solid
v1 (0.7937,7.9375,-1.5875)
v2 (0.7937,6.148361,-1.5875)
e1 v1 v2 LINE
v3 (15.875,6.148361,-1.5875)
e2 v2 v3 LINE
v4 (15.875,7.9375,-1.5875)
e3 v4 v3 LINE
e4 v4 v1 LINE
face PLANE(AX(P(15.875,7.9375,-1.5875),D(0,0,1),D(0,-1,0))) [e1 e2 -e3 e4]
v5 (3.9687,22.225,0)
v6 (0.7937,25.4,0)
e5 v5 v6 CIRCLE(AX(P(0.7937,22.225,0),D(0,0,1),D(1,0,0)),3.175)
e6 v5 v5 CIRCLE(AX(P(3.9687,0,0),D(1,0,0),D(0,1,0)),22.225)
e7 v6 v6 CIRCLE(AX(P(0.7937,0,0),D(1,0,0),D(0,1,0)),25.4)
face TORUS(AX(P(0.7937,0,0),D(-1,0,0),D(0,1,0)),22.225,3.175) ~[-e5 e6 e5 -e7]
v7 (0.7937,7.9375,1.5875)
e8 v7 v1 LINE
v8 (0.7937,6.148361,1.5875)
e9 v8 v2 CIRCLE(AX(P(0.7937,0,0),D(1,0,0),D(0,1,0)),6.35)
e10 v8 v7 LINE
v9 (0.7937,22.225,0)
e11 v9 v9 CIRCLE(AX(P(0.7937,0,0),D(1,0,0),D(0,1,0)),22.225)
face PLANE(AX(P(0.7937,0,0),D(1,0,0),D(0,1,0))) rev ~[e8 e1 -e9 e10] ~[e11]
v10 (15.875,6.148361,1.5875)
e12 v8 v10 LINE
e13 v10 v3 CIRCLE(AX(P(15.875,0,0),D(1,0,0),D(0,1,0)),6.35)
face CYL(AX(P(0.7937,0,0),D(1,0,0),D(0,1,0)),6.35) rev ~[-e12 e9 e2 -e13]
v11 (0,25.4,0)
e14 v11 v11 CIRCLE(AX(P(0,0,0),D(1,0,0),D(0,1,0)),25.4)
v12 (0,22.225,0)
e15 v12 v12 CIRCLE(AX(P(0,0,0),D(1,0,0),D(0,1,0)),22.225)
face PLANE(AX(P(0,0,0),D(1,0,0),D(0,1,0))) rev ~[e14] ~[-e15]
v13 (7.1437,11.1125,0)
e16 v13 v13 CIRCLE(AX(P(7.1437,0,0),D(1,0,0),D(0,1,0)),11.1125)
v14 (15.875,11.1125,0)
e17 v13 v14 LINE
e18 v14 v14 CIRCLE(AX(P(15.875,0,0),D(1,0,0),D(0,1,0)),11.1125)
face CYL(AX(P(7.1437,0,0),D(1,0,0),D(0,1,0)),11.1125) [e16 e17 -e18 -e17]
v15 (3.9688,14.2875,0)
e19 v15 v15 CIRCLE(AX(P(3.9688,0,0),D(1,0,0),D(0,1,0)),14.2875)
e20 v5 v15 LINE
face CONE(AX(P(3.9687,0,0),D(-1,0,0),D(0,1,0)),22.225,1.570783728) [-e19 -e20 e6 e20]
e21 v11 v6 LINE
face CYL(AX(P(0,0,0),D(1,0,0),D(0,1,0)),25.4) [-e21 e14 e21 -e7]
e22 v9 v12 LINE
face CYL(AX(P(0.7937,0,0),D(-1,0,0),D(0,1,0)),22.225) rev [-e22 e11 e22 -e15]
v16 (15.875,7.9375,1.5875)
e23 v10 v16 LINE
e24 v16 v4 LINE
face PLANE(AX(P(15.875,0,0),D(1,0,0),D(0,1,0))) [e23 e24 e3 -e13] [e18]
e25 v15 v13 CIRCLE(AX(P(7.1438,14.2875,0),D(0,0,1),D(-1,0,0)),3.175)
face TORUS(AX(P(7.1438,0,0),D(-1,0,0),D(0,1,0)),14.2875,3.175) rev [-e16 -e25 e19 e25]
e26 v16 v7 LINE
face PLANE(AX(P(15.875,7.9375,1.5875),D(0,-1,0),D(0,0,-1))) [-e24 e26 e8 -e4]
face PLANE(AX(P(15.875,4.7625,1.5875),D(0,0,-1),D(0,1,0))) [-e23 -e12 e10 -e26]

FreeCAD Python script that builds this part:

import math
import FreeCAD as App
import Part
import Sketcher
Q = App.Units.Quantity


def add_polygon(sketch, points):
    """Adds a closed chain of lines whose ends are joined by coincident constraints."""
    first, n = sketch.GeometryCount, len(points)
    for a, b in zip(points, points[1:] + points[:1]):
        sketch.addGeometry(Part.LineSegment(App.Vector(*a, 0), App.Vector(*b, 0)), False)
    for i in range(n):
        sketch.addConstraint(Sketcher.Constraint("Coincident", first + i, 2, first + (i + 1) % n, 1))

doc = App.newDocument("Part")
body = doc.addObject("PartDesign::Body", "Body")

# Sketch on XY plane
sketch1 = body.newObject("Sketcher::SketchObject", "Sketch")
sketch1.AttachmentSupport = (doc.getObject("XY_Plane"), [""])
sketch1.MapMode = "FlatFace"
sketch1.addGeometry([
    Part.LineSegment(App.Vector(0.8, 25.4, 0), App.Vector(0, 25.4, 0)),  # 0
    Part.LineSegment(App.Vector(0, 25.4, 0), App.Vector(0, 22.2, 0)),  # 1
    Part.LineSegment(App.Vector(0, 22.2, 0), App.Vector(0.8, 22.2, 0)),  # 2
    Part.LineSegment(App.Vector(0.8, 22.2, 0), App.Vector(0.8, 6.3, 0)),  # 3
    Part.LineSegment(App.Vector(0.8, 6.3, 0), App.Vector(15.9, 6.3, 0)),  # 4
    Part.LineSegment(App.Vector(15.9, 6.3, 0), App.Vector(15.9, 11.1, 0)),  # 5
    Part.LineSegment(App.Vector(15.9, 11.1, 0), App.Vector(7.1, 11.1, 0)),  # 6
    Part.ArcOfCircle(Part.Circle(App.Vector(7.1, 14.3, 0), App.Vector(0, 0, 1), 3.2), math.radians(180), math.radians(270)),  # 7
    Part.LineSegment(App.Vector(4, 14.3, 0), App.Vector(4, 22.2, 0)),  # 8
    Part.ArcOfCircle(Part.Circle(App.Vector(0.8, 22.2, 0), App.Vector(0, 0, 1), 3.2), math.radians(0), math.radians(90)),  # 9
], False)
sketch1.addConstraint([
    Sketcher.Constraint("Coincident", 0, 2, 1, 1),
    Sketcher.Constraint("Coincident", 1, 2, 2, 1),
    Sketcher.Constraint("Coincident", 2, 2, 3, 1),
    Sketcher.Constraint("Coincident", 3, 2, 4, 1),
    Sketcher.Constraint("Coincident", 4, 2, 5, 1),
    Sketcher.Constraint("Coincident", 5, 2, 6, 1),
    Sketcher.Constraint("Tangent", 6, 2, 7, 2),
    Sketcher.Constraint("Tangent", 7, 1, 8, 1),
    Sketcher.Constraint("Tangent", 8, 2, 9, 1),
    Sketcher.Constraint("Tangent", 9, 2, 0, 1),
    Sketcher.Constraint("Horizontal", 0),
    Sketcher.Constraint("Vertical", 1),
    Sketcher.Constraint("Horizontal", 2),
    Sketcher.Constraint("Vertical", 3),
    Sketcher.Constraint("Horizontal", 4),
    Sketcher.Constraint("Vertical", 5),
    Sketcher.Constraint("Horizontal", 6),
    Sketcher.Constraint("Vertical", 8),
    Sketcher.Constraint("Coincident", 2, 2, 9, 3),
    Sketcher.Constraint("Equal", 7, 9),
    Sketcher.Constraint("PointOnObject", 0, 2, -2),
    Sketcher.Constraint("Radius", 7, Q("0.125 in")),
    Sketcher.Constraint("DistanceX", 0, 2, 0, 1, Q("0.031248 in")),
    Sketcher.Constraint("DistanceY", 3, 2, 3, 1, Q("0.625 in")),
    Sketcher.Constraint("DistanceY", -1, 1, 9, 3, Q("0.875 in")),
    Sketcher.Constraint("DistanceX", -1, 1, 4, 2, Q("0.625 in")),
    Sketcher.Constraint("DistanceY", 5, 1, 5, 2, Q("0.1875 in")),
])
revolution = body.newObject("PartDesign::Revolution", "Revolution")
revolution.Profile = sketch1
revolution.ReferenceAxis = (sketch1, ["H_Axis"])
revolution.Angle = 360

# Sketch on YZ plane
sketch2 = body.newObject("Sketcher::SketchObject", "Sketch001")
sketch2.AttachmentSupport = (doc.getObject("YZ_Plane"), [""])
sketch2.MapMode = "FlatFace"
sketch2.AttachmentOffset = App.Placement(App.Vector(0, 0, 0.625 * 25.4), App.Rotation())
add_polygon(sketch2, [(7.9, -1.6), (7.9, 1.6), (4.8, 1.6), (4.8, -1.6)])  # lines 0-3
sketch2.addConstraint([
    Sketcher.Constraint("Vertical", 0),
    Sketcher.Constraint("Horizontal", 1),
    Sketcher.Constraint("Vertical", 2),
    Sketcher.Constraint("Horizontal", 3),
    Sketcher.Constraint("Equal", 3, 0),
    Sketcher.Constraint("DistanceX", 1, 2, 1, 1, Q("0.125 in")),
    Sketcher.Constraint("DistanceY", -1, 1, 0, 2, Q("0.0625 in")),
    Sketcher.Constraint("DistanceX", -1, 1, 0, 2, Q("0.3125 in")),
])
pocket1 = body.newObject("PartDesign::Pocket", "Pocket")
pocket1.Profile = sketch2
pocket1.Type = "ThroughAll"

doc.recompute()
